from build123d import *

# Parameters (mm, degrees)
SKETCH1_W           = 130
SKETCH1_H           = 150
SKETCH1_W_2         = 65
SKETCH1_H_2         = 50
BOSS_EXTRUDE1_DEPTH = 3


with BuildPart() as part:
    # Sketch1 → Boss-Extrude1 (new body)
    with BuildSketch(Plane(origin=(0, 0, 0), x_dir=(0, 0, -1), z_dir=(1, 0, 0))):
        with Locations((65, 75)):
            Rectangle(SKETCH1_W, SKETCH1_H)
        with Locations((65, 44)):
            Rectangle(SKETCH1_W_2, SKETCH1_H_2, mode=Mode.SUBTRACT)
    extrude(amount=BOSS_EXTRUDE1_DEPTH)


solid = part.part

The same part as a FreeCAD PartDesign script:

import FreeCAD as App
import Part
import Sketcher
from FreeCAD import Vector

doc = App.newDocument("Part")
body = doc.addObject("PartDesign::Body", "Body")

sketch1 = body.newObject("Sketcher::SketchObject", "Sketch")
sketch1.AttachmentSupport = (doc.getObject("YZ_Plane"), [""])
sketch1.MapMode = "FlatFace"
sketch1.addGeometry(Part.LineSegment(Vector(150, 0, 0), Vector(0, 0, 0)), False)
sketch1.addGeometry(Part.LineSegment(Vector(0, 0, 0), Vector(0, -130, 0)), False)
sketch1.addGeometry(Part.LineSegment(Vector(0, -130, 0), Vector(150, -130, 0)), False)
sketch1.addGeometry(Part.LineSegment(Vector(150, -130, 0), Vector(150, 0, 0)), False)
sketch1.addGeometry(Part.LineSegment(Vector(19, -98, 0), Vector(19, -32, 0)), False)
sketch1.addGeometry(Part.LineSegment(Vector(19, -32, 0), Vector(69, -32, 0)), False)
sketch1.addGeometry(Part.LineSegment(Vector(69, -32, 0), Vector(69, -98, 0)), False)
sketch1.addGeometry(Part.LineSegment(Vector(69, -98, 0), Vector(19, -98, 0)), False)
sketch1.addConstraint(Sketcher.Constraint("Coincident", 0, 2, 1, 1))
sketch1.addConstraint(Sketcher.Constraint("Coincident", 1, 2, 2, 1))
sketch1.addConstraint(Sketcher.Constraint("Coincident", 2, 2, 3, 1))
sketch1.addConstraint(Sketcher.Constraint("Coincident", 3, 2, 0, 1))
sketch1.addConstraint(Sketcher.Constraint("Coincident", 4, 2, 5, 1))
sketch1.addConstraint(Sketcher.Constraint("Coincident", 5, 2, 6, 1))
sketch1.addConstraint(Sketcher.Constraint("Coincident", 6, 2, 7, 1))
sketch1.addConstraint(Sketcher.Constraint("Coincident", 7, 2, 4, 1))
sketch1.addConstraint(Sketcher.Constraint("Horizontal", 0))
sketch1.addConstraint(Sketcher.Constraint("Vertical", 1))
sketch1.addConstraint(Sketcher.Constraint("Horizontal", 2))
sketch1.addConstraint(Sketcher.Constraint("Vertical", 3))
sketch1.addConstraint(Sketcher.Constraint("Vertical", 4))
sketch1.addConstraint(Sketcher.Constraint("Horizontal", 5))
sketch1.addConstraint(Sketcher.Constraint("Vertical", 6))
sketch1.addConstraint(Sketcher.Constraint("Horizontal", 7))
sketch1.addConstraint(Sketcher.Constraint("Coincident", 0, 2, -1, 1))
sketch1.addConstraint(Sketcher.Constraint("DistanceX", 0, 2, 0, 1, 150.0))
sketch1.addConstraint(Sketcher.Constraint("DistanceX", 5, 1, 5, 2, 50.0))
sketch1.addConstraint(Sketcher.Constraint("DistanceY", 1, 2, 1, 1, 130.0))
sketch1.addConstraint(Sketcher.Constraint("DistanceY", 4, 1, 4, 2, 65.0))
sketch1.addConstraint(Sketcher.Constraint("DistanceX", -1, 1, 4, 2, 19.0))
sketch1.addConstraint(Sketcher.Constraint("DistanceY", 4, 2, -1, 1, 32.5))
pad1 = body.newObject("PartDesign::Pad", "Pad")
pad1.Profile = sketch1
pad1.Length = 3

doc.recompute()
